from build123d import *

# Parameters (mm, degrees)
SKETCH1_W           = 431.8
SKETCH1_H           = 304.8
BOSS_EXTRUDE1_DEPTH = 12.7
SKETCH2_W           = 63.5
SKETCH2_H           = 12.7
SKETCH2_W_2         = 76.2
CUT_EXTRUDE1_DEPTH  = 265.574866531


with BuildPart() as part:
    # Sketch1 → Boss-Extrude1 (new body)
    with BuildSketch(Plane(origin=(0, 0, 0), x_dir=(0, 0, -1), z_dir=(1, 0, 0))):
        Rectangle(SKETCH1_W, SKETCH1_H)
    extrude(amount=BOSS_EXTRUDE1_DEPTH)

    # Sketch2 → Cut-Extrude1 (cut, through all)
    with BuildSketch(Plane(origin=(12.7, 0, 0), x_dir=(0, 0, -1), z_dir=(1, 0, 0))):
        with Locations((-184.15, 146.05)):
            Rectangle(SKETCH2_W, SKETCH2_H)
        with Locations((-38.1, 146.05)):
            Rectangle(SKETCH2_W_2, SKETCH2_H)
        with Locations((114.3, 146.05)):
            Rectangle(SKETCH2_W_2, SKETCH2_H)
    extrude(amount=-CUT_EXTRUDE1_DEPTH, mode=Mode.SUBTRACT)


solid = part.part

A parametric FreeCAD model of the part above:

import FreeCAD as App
import Part
import Sketcher
Q = App.Units.Quantity

doc = App.newDocument("Part")
params = doc.addObject("Spreadsheet::Sheet", "Params")
for row, (alias, value) in enumerate([
    ("sketch1_width", "12 in"),
    ("sketch1_height", "17 in"),
    ("pad1_length", "0.5 in"),
    ("sketch2_height", "3 in"),
    ("sketch2_width", "0.5 in"),
    ("sketch2_height2", "2.5 in"),
], start=1):
    params.set(f"A{row}", alias)
    params.set(f"B{row}", "=" + value)
    params.setAlias(f"B{row}", alias)

body = doc.addObject("PartDesign::Body", "Body")

# Sketch on YZ plane
sketch1 = body.newObject("Sketcher::SketchObject", "Sketch")
sketch1.AttachmentSupport = (doc.getObject("YZ_Plane"), [""])
sketch1.MapMode = "FlatFace"
sketch1.addGeometry([
    Part.LineSegment(App.Vector(152, 216, 0), App.Vector(-152, 216, 0)),
    Part.LineSegment(App.Vector(-152, 216, 0), App.Vector(-152, -216, 0)),
    Part.LineSegment(App.Vector(-152, -216, 0), App.Vector(152, -216, 0)),
    Part.LineSegment(App.Vector(152, -216, 0), App.Vector(152, 216, 0)),
], False)
sketch1.addConstraint([
    Sketcher.Constraint("Coincident", 0, 2, 1, 1),
    Sketcher.Constraint("Coincident", 1, 2, 2, 1),
    Sketcher.Constraint("Coincident", 2, 2, 3, 1),
    Sketcher.Constraint("Coincident", 3, 2, 0, 1),
    Sketcher.Constraint("Horizontal", 0),
    Sketcher.Constraint("Vertical", 1),
    Sketcher.Constraint("Horizontal", 2),
    Sketcher.Constraint("Vertical", 3),
    Sketcher.Constraint("Symmetric", 0, 2, 2, 2, -1, 1),
    Sketcher.Constraint("DistanceX", 0, 2, 0, 1, Q("12 in")),
    Sketcher.Constraint("DistanceY", 1, 2, 1, 1, Q("17 in")),
])
sketch1.setExpression("Constraints[9]", "Params.sketch1_width")
sketch1.setExpression("Constraints[10]", "Params.sketch1_height")
pad1 = body.newObject("PartDesign::Pad", "Pad")
pad1.Profile = sketch1
pad1.setExpression("Length", "Params.pad1_length")

# Sketch on YZ plane
sketch2 = body.newObject("Sketcher::SketchObject", "Sketch001")
sketch2.AttachmentSupport = (doc.getObject("YZ_Plane"), [""])
sketch2.MapMode = "FlatFace"
sketch2.AttachmentOffset = App.Placement(App.Vector(0, 0, 0.5 * 25.4), App.Rotation())
sketch2.addGeometry([
    Part.LineSegment(App.Vector(152, 216, 0), App.Vector(140, 216, 0)),  # 0
    Part.LineSegment(App.Vector(140, 216, 0), App.Vector(140, 152, 0)),  # 1
    Part.LineSegment(App.Vector(140, 152, 0), App.Vector(152, 152, 0)),  # 2
    Part.LineSegment(App.Vector(152, 152, 0), App.Vector(152, 216, 0)),  # 3
    Part.LineSegment(App.Vector(152, 76, 0), App.Vector(140, 76, 0)),  # 4
    Part.LineSegment(App.Vector(140, 76, 0), App.Vector(140, 0, 0)),  # 5
    Part.LineSegment(App.Vector(140, 0, 0), App.Vector(152, 0, 0)),  # 6
    Part.LineSegment(App.Vector(152, 0, 0), App.Vector(152, 76, 0)),  # 7
    Part.LineSegment(App.Vector(152, -76, 0), App.Vector(140, -76, 0)),  # 8
    Part.LineSegment(App.Vector(140, -76, 0), App.Vector(140, -152, 0)),  # 9
    Part.LineSegment(App.Vector(140, -152, 0), App.Vector(152, -152, 0)),  # 10
    Part.LineSegment(App.Vector(152, -152, 0), App.Vector(152, -76, 0)),  # 11
], False)
sketch2.addConstraint([
    Sketcher.Constraint("Coincident", 0, 2, 1, 1),
    Sketcher.Constraint("Coincident", 1, 2, 2, 1),
    Sketcher.Constraint("Coincident", 2, 2, 3, 1),
    Sketcher.Constraint("Coincident", 3, 2, 0, 1),
    Sketcher.Constraint("Coincident", 4, 2, 5, 1),
    Sketcher.Constraint("Coincident", 5, 2, 6, 1),
    Sketcher.Constraint("Coincident", 6, 2, 7, 1),
    Sketcher.Constraint("Coincident", 7, 2, 4, 1),
    Sketcher.Constraint("Coincident", 8, 2, 9, 1),
    Sketcher.Constraint("Coincident", 9, 2, 10, 1),
    Sketcher.Constraint("Coincident", 10, 2, 11, 1),
    Sketcher.Constraint("Coincident", 11, 2, 8, 1),
    Sketcher.Constraint("Horizontal", 0),
    Sketcher.Constraint("Vertical", 1),
    Sketcher.Constraint("Horizontal", 2),
    Sketcher.Constraint("Vertical", 3),
    Sketcher.Constraint("Horizontal", 4),
    Sketcher.Constraint("Vertical", 5),
    Sketcher.Constraint("Horizontal", 6),
    Sketcher.Constraint("Vertical", 7),
    Sketcher.Constraint("Horizontal", 8),
    Sketcher.Constraint("Vertical", 9),
    Sketcher.Constraint("Horizontal", 10),
    Sketcher.Constraint("Vertical", 11),
    Sketcher.Constraint("Symmetric", 4, 2, 8, 2, -1),
    Sketcher.Constraint("Symmetric", 1, 2, 9, 2, -1),
    Sketcher.Constraint("PointOnObject", 5, 2, -1),
    Sketcher.Constraint("Vertical", 3, 2, 6, 2),
    Sketcher.Constraint("Vertical", 7, 2, 10, 2),
    Sketcher.Constraint("Equal", 7, 9),
    Sketcher.Constraint("DistanceY", 5, 2, 5, 1, Q("3 in")),
    Sketcher.Constraint("DistanceX", 0, 2, 0, 1, Q("0.5 in")),
    Sketcher.Constraint("DistanceY", 1, 2, 1, 1, Q("2.5 in")),
    Sketcher.Constraint("DistanceX", -1, 1, 2, 2, Q("6 in")),
])
sketch2.setExpression("Constraints[30]", "Params.sketch2_height")
sketch2.setExpression("Constraints[31]", "Params.sketch2_width")
sketch2.setExpression("Constraints[32]", "Params.sketch2_height2")
pocket1 = body.newObject("PartDesign::Pocket", "Pocket")
pocket1.Profile = sketch2
pocket1.Type = "ThroughAll"

doc.recompute()
